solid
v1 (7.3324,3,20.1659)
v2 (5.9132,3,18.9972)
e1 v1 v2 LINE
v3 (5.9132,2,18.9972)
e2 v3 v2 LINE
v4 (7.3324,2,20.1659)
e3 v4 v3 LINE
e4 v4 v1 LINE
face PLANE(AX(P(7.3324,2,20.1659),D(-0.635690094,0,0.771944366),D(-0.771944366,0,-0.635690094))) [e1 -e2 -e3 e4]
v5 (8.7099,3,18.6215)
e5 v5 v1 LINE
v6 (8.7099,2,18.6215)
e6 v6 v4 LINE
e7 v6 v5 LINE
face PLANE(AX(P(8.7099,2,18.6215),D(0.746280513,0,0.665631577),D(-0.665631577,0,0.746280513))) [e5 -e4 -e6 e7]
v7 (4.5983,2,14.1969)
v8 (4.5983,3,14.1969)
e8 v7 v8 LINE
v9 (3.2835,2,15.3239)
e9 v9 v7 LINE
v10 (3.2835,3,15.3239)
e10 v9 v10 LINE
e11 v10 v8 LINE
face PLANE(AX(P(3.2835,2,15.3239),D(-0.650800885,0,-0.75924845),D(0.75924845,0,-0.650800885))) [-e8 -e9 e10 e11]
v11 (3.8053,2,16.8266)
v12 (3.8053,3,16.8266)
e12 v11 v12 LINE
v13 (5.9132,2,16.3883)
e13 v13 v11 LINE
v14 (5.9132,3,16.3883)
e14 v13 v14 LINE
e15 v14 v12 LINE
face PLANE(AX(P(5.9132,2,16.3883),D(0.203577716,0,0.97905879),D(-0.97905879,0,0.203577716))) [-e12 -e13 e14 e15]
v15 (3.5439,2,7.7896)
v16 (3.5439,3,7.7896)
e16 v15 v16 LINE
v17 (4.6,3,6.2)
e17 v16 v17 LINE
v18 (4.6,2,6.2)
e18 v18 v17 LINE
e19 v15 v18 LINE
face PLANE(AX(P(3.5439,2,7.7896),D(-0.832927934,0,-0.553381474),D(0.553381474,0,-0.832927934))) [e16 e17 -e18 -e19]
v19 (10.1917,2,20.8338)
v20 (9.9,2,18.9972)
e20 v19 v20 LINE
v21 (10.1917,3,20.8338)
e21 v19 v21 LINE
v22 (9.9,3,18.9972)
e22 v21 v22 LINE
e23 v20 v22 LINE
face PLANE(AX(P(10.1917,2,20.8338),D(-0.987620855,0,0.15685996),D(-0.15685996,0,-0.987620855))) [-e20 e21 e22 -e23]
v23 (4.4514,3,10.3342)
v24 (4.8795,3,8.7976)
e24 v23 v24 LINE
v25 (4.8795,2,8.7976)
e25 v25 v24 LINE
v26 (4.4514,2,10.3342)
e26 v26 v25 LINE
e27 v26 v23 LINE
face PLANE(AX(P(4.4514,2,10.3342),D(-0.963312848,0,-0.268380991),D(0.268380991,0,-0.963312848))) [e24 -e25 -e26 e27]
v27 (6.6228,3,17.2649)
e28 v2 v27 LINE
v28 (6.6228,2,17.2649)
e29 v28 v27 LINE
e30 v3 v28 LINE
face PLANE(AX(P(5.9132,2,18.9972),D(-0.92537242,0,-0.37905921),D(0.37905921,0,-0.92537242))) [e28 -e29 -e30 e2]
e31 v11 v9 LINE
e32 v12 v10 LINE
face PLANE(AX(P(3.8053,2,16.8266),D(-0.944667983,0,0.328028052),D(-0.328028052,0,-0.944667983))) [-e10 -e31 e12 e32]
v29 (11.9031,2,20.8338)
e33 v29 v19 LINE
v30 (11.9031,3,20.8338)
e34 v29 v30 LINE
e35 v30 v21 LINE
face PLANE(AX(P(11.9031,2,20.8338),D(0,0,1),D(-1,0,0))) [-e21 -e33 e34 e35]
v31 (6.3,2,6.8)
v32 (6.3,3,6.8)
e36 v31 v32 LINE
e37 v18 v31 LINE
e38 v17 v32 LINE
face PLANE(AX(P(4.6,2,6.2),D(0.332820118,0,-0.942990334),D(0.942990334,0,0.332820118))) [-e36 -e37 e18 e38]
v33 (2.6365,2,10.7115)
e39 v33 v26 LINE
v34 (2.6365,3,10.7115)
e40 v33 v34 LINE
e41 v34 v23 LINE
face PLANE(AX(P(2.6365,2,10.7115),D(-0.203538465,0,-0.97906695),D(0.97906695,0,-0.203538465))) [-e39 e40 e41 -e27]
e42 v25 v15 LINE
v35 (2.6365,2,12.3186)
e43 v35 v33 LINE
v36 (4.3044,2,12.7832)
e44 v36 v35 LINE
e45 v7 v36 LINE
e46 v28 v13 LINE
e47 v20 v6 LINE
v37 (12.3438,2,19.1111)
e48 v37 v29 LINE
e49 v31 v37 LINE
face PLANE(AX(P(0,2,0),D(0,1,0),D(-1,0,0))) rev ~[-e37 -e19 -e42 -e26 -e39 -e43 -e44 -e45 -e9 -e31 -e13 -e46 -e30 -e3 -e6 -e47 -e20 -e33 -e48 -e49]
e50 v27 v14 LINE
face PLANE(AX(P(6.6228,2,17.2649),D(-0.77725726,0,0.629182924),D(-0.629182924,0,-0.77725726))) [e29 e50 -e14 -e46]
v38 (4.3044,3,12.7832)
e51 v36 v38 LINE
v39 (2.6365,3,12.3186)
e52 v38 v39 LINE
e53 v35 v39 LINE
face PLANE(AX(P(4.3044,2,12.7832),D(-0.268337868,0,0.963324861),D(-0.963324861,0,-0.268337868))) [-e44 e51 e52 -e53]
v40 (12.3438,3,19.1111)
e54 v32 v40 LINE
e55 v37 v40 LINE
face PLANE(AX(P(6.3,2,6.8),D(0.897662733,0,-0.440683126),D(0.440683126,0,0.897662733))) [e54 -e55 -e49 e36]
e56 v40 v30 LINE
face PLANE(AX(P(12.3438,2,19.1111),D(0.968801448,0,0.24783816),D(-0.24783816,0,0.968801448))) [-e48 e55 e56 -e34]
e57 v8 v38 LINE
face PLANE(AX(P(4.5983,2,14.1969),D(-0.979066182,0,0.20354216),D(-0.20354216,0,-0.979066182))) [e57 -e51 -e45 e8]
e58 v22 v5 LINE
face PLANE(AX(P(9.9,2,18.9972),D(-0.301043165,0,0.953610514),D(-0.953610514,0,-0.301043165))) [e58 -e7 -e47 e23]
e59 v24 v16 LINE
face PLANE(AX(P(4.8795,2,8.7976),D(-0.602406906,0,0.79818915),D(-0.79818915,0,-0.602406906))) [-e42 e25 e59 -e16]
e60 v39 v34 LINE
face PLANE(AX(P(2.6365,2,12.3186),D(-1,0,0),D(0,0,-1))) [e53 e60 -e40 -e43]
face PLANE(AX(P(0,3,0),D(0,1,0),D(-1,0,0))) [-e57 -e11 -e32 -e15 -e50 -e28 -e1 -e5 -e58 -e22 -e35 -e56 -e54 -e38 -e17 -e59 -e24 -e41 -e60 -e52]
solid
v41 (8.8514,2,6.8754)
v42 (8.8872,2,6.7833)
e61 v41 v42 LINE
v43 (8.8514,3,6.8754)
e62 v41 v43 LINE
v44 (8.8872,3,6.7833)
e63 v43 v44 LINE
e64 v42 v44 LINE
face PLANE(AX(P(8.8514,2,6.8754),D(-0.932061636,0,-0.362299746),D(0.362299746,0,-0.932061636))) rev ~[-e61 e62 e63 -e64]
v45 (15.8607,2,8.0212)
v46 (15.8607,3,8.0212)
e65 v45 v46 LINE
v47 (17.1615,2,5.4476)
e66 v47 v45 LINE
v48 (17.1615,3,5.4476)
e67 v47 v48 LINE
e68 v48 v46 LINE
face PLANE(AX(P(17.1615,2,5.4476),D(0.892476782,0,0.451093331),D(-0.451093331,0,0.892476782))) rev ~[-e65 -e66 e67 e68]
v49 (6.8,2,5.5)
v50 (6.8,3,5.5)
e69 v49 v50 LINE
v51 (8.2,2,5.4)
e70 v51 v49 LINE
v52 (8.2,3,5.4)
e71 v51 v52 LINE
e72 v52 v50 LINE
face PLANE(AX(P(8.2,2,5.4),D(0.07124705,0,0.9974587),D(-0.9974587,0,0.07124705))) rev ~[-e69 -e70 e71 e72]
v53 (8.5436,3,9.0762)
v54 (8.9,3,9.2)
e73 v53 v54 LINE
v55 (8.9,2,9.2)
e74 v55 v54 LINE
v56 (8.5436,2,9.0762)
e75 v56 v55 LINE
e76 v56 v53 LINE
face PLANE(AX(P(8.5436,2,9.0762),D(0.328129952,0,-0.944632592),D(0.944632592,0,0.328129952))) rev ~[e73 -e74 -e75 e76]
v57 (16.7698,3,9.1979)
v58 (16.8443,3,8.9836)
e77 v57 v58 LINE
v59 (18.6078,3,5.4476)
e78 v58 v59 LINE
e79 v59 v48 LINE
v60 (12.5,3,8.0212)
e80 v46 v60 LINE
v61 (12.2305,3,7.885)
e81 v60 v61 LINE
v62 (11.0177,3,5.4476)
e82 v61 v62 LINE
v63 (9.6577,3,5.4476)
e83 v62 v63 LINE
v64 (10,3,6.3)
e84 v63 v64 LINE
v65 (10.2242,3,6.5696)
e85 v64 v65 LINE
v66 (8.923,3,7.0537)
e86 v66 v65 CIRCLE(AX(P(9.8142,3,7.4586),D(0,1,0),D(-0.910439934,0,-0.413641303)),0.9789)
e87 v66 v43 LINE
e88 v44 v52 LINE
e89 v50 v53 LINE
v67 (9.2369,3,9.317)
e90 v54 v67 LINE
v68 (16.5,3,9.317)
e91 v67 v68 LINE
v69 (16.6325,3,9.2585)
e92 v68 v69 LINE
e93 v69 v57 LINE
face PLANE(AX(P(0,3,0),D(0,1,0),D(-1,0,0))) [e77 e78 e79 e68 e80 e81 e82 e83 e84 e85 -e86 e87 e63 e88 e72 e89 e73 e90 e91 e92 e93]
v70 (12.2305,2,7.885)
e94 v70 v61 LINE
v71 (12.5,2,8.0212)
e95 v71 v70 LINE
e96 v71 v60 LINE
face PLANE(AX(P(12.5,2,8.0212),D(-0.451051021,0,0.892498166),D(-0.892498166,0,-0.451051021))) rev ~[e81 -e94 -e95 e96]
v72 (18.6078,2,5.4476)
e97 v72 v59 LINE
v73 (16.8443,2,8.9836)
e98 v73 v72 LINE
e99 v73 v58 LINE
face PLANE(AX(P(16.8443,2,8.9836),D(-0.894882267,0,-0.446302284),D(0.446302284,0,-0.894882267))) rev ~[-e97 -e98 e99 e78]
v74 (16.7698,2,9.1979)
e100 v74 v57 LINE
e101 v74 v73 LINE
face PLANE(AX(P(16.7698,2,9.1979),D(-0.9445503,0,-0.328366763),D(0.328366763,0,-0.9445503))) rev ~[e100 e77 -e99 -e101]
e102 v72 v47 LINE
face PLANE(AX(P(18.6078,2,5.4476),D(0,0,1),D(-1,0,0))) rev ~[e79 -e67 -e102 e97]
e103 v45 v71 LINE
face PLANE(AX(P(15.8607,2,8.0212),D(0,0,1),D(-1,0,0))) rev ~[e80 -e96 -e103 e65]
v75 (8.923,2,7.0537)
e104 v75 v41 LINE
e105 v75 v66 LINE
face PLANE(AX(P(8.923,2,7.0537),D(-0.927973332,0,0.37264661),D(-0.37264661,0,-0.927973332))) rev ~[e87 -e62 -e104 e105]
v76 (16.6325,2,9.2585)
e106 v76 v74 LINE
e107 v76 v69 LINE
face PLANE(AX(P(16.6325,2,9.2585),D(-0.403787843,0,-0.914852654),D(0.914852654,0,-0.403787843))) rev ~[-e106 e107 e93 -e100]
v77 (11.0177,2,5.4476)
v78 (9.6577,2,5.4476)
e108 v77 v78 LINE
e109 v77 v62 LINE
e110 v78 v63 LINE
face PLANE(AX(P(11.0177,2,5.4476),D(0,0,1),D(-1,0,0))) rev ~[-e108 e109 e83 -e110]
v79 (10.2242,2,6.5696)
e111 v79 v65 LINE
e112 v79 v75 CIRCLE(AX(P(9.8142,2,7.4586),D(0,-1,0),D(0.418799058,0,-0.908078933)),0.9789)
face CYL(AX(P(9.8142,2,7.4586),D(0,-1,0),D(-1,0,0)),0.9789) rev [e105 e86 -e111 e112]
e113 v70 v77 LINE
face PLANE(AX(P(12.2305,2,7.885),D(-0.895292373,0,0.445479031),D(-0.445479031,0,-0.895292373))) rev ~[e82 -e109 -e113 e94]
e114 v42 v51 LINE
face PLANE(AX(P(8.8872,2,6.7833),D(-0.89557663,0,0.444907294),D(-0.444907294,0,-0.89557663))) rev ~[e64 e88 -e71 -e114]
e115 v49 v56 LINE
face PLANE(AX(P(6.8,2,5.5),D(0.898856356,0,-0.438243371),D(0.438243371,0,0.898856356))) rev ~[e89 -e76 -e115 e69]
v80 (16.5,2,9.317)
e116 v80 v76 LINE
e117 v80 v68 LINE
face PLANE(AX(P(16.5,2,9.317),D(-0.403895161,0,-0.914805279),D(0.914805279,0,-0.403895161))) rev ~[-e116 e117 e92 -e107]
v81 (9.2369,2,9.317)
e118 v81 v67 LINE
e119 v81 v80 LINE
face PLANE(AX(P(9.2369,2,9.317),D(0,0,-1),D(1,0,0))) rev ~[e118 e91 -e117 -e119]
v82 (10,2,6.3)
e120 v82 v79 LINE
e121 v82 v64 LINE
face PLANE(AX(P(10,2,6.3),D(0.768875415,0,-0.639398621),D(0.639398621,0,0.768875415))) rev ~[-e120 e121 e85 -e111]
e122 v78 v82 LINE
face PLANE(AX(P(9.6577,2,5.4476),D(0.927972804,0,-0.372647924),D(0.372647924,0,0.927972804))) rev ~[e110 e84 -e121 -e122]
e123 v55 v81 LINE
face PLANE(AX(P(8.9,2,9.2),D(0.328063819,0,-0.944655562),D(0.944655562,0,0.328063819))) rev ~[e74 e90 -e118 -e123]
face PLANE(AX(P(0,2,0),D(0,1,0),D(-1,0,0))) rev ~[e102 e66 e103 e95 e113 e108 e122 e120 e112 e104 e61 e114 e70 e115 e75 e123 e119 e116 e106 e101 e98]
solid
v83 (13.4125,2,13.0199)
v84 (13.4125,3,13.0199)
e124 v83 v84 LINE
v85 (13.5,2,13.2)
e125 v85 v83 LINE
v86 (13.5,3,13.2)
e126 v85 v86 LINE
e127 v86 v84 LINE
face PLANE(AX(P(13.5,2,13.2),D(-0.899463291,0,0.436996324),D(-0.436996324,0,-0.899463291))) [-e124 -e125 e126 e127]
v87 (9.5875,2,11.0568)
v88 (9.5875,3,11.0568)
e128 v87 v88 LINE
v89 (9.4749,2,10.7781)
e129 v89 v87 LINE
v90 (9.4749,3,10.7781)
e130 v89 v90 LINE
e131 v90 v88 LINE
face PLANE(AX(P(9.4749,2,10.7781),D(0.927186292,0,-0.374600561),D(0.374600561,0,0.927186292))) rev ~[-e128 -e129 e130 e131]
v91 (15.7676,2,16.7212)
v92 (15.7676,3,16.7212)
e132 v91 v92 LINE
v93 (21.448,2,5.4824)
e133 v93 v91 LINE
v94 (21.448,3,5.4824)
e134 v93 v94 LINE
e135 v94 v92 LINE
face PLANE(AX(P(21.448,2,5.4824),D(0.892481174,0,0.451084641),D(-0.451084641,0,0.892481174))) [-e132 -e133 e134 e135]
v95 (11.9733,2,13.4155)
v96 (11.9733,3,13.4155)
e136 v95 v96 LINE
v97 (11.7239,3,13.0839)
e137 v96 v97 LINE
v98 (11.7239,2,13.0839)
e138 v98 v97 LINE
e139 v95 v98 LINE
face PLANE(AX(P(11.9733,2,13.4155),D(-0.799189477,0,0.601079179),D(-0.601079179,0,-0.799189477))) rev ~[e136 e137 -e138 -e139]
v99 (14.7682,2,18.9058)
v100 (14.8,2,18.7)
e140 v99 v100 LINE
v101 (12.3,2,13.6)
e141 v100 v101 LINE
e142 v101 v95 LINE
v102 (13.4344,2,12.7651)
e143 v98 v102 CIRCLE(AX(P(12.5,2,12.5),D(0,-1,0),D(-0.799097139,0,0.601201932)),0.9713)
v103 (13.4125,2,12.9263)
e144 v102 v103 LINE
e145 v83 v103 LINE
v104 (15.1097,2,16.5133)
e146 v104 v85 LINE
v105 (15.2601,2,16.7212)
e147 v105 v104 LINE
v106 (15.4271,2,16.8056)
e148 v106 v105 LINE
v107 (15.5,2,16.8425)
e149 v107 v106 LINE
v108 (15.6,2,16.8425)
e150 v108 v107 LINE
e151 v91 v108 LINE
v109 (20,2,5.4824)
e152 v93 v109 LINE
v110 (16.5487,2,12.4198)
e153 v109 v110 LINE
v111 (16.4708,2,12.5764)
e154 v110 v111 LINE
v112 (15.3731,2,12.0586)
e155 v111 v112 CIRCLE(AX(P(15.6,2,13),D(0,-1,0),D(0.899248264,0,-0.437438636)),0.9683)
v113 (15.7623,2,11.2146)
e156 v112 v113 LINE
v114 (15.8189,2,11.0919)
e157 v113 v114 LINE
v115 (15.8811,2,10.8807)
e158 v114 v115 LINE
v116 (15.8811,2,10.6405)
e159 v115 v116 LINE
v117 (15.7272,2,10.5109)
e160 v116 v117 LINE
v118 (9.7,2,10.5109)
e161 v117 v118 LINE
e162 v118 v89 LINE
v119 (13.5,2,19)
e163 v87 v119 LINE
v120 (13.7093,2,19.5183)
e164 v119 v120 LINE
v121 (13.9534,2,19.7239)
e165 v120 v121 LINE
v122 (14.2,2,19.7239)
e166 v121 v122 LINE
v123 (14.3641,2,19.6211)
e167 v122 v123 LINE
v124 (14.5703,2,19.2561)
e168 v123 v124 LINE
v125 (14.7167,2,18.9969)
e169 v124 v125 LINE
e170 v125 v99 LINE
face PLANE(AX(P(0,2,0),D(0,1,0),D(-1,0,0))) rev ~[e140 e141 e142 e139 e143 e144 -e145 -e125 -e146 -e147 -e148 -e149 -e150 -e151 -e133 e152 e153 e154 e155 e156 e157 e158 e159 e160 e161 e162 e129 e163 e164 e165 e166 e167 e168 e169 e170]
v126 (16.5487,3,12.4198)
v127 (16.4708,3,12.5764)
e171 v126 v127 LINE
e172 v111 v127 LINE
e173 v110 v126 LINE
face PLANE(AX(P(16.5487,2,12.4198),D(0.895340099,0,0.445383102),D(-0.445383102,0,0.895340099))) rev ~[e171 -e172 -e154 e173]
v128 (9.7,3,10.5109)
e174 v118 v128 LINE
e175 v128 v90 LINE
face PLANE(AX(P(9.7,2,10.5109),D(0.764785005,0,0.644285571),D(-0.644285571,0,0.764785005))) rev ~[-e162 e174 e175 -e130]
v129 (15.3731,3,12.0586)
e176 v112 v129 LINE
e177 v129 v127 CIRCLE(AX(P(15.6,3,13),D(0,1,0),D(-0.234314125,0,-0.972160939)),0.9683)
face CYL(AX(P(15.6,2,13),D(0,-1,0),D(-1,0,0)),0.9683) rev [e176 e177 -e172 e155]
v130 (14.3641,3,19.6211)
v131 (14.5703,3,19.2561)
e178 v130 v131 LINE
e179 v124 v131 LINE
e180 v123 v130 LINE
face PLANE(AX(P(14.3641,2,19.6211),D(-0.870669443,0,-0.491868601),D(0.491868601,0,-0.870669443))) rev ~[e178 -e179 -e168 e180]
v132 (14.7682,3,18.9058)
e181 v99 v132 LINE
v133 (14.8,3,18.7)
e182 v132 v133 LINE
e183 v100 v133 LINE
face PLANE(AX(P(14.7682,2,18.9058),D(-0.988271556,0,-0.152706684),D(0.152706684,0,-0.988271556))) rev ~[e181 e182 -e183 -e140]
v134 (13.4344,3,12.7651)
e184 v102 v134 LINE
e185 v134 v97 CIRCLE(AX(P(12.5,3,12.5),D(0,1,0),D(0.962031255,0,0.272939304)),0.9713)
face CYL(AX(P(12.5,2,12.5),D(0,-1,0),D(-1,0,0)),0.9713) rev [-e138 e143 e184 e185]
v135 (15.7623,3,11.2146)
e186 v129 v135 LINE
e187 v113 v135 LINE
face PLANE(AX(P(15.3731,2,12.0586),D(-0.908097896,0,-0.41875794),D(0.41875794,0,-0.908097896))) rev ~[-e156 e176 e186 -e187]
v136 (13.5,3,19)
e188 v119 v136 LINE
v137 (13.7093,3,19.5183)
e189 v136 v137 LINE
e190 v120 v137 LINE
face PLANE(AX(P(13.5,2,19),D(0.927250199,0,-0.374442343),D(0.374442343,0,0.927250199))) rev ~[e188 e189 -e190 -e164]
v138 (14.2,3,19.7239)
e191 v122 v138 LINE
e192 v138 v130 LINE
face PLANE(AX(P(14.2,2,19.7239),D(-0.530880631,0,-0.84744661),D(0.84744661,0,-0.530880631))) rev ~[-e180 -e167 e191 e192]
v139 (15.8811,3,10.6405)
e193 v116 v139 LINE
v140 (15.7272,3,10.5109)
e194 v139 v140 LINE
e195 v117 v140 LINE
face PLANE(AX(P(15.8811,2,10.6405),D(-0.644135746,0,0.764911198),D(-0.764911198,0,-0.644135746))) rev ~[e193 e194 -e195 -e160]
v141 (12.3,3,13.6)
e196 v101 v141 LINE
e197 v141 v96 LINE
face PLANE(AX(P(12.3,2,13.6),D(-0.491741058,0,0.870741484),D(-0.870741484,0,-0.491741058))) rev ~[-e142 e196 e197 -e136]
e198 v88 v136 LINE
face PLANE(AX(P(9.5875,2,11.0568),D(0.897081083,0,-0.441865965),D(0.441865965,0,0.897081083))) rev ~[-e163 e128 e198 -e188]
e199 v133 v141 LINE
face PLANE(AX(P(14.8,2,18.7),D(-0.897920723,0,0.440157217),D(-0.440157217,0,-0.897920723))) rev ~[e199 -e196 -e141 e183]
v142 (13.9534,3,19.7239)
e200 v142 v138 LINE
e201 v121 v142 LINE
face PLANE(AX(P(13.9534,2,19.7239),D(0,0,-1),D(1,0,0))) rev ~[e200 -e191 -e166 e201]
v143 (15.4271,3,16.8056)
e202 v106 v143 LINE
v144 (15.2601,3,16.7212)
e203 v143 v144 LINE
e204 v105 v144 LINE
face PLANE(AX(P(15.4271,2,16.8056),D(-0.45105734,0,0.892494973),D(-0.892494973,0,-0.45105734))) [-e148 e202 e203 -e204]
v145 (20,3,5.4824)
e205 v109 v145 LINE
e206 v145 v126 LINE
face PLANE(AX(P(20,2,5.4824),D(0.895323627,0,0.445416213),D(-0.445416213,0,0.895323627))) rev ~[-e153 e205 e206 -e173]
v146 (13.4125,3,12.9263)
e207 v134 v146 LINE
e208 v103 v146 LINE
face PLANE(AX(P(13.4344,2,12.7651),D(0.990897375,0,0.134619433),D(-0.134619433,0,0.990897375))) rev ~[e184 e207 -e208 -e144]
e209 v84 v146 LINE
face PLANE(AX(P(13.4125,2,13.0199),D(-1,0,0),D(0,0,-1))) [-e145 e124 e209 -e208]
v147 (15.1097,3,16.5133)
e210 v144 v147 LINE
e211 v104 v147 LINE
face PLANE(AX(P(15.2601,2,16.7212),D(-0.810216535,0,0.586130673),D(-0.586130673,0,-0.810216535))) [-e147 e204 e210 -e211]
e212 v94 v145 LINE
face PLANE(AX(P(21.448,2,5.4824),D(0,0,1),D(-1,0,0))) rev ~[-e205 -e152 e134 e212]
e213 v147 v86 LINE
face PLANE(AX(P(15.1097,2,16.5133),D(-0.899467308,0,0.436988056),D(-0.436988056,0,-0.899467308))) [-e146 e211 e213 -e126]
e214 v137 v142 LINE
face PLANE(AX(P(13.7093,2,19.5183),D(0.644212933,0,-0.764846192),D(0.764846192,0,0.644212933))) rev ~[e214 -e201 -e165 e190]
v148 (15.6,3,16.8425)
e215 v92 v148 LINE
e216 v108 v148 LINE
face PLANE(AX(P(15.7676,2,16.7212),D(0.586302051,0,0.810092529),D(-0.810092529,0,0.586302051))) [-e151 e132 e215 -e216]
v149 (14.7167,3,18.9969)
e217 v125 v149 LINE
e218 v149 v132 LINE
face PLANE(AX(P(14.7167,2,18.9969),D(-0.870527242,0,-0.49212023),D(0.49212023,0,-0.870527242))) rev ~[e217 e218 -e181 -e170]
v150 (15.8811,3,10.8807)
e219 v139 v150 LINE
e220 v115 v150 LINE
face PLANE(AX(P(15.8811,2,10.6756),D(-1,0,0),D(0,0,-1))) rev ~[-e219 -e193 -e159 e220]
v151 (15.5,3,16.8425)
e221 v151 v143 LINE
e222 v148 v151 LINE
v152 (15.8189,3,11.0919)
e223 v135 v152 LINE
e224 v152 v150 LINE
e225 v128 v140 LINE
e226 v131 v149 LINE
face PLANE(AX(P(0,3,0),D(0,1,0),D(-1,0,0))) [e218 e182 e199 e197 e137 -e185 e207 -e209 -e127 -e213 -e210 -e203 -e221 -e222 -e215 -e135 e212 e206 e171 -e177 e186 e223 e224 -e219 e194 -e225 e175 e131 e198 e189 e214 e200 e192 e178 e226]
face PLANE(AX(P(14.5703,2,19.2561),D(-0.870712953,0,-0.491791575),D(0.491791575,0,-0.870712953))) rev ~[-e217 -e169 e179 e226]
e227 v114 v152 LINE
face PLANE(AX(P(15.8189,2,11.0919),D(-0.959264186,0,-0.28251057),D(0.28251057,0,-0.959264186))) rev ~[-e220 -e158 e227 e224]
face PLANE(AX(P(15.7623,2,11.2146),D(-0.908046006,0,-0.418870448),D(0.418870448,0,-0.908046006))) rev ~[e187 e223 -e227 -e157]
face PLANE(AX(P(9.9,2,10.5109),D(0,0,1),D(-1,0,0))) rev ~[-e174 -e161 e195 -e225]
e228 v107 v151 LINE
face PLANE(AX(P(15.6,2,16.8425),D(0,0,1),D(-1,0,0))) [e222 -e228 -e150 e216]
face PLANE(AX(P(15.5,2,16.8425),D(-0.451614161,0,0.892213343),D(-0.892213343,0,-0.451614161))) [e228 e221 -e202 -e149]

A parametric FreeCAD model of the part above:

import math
import FreeCAD as App
import Part
import Sketcher
Q = App.Units.Quantity


def add_polygon(sketch, points):
    """Adds a closed chain of lines whose ends are joined by coincident constraints."""
    first, n = sketch.GeometryCount, len(points)
    for a, b in zip(points, points[1:] + points[:1]):
        sketch.addGeometry(Part.LineSegment(App.Vector(*a, 0), App.Vector(*b, 0)), False)
    for i in range(n):
        sketch.addConstraint(Sketcher.Constraint("Coincident", first + i, 2, first + (i + 1) % n, 1))

doc = App.newDocument("Part")
params = doc.addObject("Spreadsheet::Sheet", "Params")
for row, (alias, value) in enumerate([
    ("sketch1_length", "0.07 in"),
    ("sketch1_width", "0.057 in"),
    ("sketch1_length2", "0.022 in"),
    ("pad1_length", "1 mm"),
], start=1):
    params.set(f"A{row}", alias)
    params.set(f"B{row}", "=" + value)
    params.setAlias(f"B{row}", alias)

body = doc.addObject("PartDesign::Body", "Body")
body.AllowCompound = True

sketch1 = body.newObject("Sketcher::SketchObject", "Sketch")
sketch1.AttachmentSupport = (doc.getObject("XZ_Plane"), [""])
sketch1.MapMode = "FlatFace"
sketch1.AttachmentOffset = App.Placement(App.Vector(0, 0, -2), App.Rotation())
sketch1.addGeometry(Part.LineSegment(App.Vector(15.77, 16.72, 0), App.Vector(21.45, 5.48, 0)), False)
sketch1.addGeometry(Part.LineSegment(App.Vector(21.45, 5.48, 0), App.Vector(20, 5.48, 0)), False)
sketch1.addGeometry(Part.LineSegment(App.Vector(20, 5.48, 0), App.Vector(16.55, 12.42, 0)), False)
sketch1.addGeometry(Part.LineSegment(App.Vector(16.55, 12.42, 0), App.Vector(16.47, 12.58, 0)), False)
sketch1.addGeometry(Part.ArcOfCircle(Part.Circle(App.Vector(15.6, 13, 0), App.Vector(0, 0, 1), 0.97), math.radians(-26), math.radians(256)), False)
sketch1.addGeometry(Part.LineSegment(App.Vector(15.37, 12.06, 0), App.Vector(15.76, 11.21, 0)), False)
sketch1.addGeometry(Part.LineSegment(App.Vector(15.76, 11.21, 0), App.Vector(15.82, 11.09, 0)), False)
sketch1.addGeometry(Part.LineSegment(App.Vector(15.82, 11.09, 0), App.Vector(15.88, 10.88, 0)), False)
sketch1.addGeometry(Part.LineSegment(App.Vector(15.88, 10.88, 0), App.Vector(15.88, 10.64, 0)), False)
sketch1.addGeometry(Part.LineSegment(App.Vector(15.88, 10.64, 0), App.Vector(15.73, 10.51, 0)), False)
sketch1.addGeometry(Part.LineSegment(App.Vector(15.73, 10.51, 0), App.Vector(9.7, 10.51, 0)), False)
sketch1.addGeometry(Part.LineSegment(App.Vector(9.7, 10.51, 0), App.Vector(9.47, 10.78, 0)), False)
sketch1.addGeometry(Part.LineSegment(App.Vector(9.47, 10.78, 0), App.Vector(9.59, 11.06, 0)), False)
sketch1.addGeometry(Part.LineSegment(App.Vector(9.59, 11.06, 0), App.Vector(13.5, 19, 0)), False)
sketch1.addGeometry(Part.LineSegment(App.Vector(13.5, 19, 0), App.Vector(13.71, 19.52, 0)), False)
sketch1.addGeometry(Part.LineSegment(App.Vector(13.71, 19.52, 0), App.Vector(13.95, 19.72, 0)), False)
sketch1.addGeometry(Part.LineSegment(App.Vector(13.95, 19.72, 0), App.Vector(14.2, 19.72, 0)), False)
sketch1.addGeometry(Part.LineSegment(App.Vector(14.2, 19.72, 0), App.Vector(14.36, 19.62, 0)), False)
sketch1.addGeometry(Part.LineSegment(App.Vector(14.36, 19.62, 0), App.Vector(14.57, 19.26, 0)), False)
sketch1.addGeometry(Part.LineSegment(App.Vector(14.57, 19.26, 0), App.Vector(14.72, 19, 0)), False)
sketch1.addGeometry(Part.LineSegment(App.Vector(14.72, 19, 0), App.Vector(14.77, 18.91, 0)), False)
sketch1.addGeometry(Part.LineSegment(App.Vector(14.77, 18.91, 0), App.Vector(14.8, 18.7, 0)), False)
sketch1.addGeometry(Part.LineSegment(App.Vector(14.8, 18.7, 0), App.Vector(12.3, 13.6, 0)), False)
sketch1.addGeometry(Part.LineSegment(App.Vector(12.3, 13.6, 0), App.Vector(11.97, 13.42, 0)), False)
sketch1.addGeometry(Part.LineSegment(App.Vector(11.97, 13.42, 0), App.Vector(11.72, 13.08, 0)), False)
sketch1.addGeometry(Part.ArcOfCircle(Part.Circle(App.Vector(12.5, 12.5, 0), App.Vector(0, 0, 1), 0.97), math.radians(143), math.radians(376)), False)
sketch1.addGeometry(Part.LineSegment(App.Vector(13.43, 12.77, 0), App.Vector(13.41, 12.93, 0)), False)
sketch1.addGeometry(Part.LineSegment(App.Vector(13.41, 12.93, 0), App.Vector(13.41, 13.02, 0)), False)
sketch1.addGeometry(Part.LineSegment(App.Vector(13.41, 13.02, 0), App.Vector(13.5, 13.2, 0)), False)
sketch1.addGeometry(Part.LineSegment(App.Vector(13.5, 13.2, 0), App.Vector(15.11, 16.51, 0)), False)
sketch1.addGeometry(Part.LineSegment(App.Vector(15.11, 16.51, 0), App.Vector(15.26, 16.72, 0)), False)
sketch1.addGeometry(Part.LineSegment(App.Vector(15.26, 16.72, 0), App.Vector(15.43, 16.81, 0)), False)
sketch1.addGeometry(Part.LineSegment(App.Vector(15.43, 16.81, 0), App.Vector(15.5, 16.84, 0)), False)
sketch1.addGeometry(Part.LineSegment(App.Vector(15.5, 16.84, 0), App.Vector(15.6, 16.84, 0)), False)
sketch1.addGeometry(Part.LineSegment(App.Vector(15.6, 16.84, 0), App.Vector(15.77, 16.72, 0)), False)
sketch1.addGeometry(Part.ArcOfCircle(Part.Circle(App.Vector(9.81, 7.46, 0), App.Vector(0, 0, 1), 0.98), math.radians(-65), math.radians(204)), False)
sketch1.addGeometry(Part.LineSegment(App.Vector(8.92, 7.05, 0), App.Vector(8.85, 6.88, 0)), False)
sketch1.addGeometry(Part.LineSegment(App.Vector(8.85, 6.88, 0), App.Vector(8.89, 6.78, 0)), False)
sketch1.addGeometry(Part.LineSegment(App.Vector(8.89, 6.78, 0), App.Vector(8.2, 5.4, 0)), False)
sketch1.addGeometry(Part.LineSegment(App.Vector(8.2, 5.4, 0), App.Vector(6.8, 5.5, 0)), False)
sketch1.addGeometry(Part.LineSegment(App.Vector(6.8, 5.5, 0), App.Vector(8.54, 9.08, 0)), False)
sketch1.addGeometry(Part.LineSegment(App.Vector(8.54, 9.08, 0), App.Vector(8.9, 9.2, 0)), False)
sketch1.addGeometry(Part.LineSegment(App.Vector(8.9, 9.2, 0), App.Vector(9.24, 9.32, 0)), False)
sketch1.addGeometry(Part.LineSegment(App.Vector(9.24, 9.32, 0), App.Vector(16.5, 9.32, 0)), False)
sketch1.addGeometry(Part.LineSegment(App.Vector(16.5, 9.32, 0), App.Vector(16.63, 9.26, 0)), False)
sketch1.addGeometry(Part.LineSegment(App.Vector(16.63, 9.26, 0), App.Vector(16.77, 9.2, 0)), False)
sketch1.addGeometry(Part.LineSegment(App.Vector(16.77, 9.2, 0), App.Vector(16.84, 8.98, 0)), False)
sketch1.addGeometry(Part.LineSegment(App.Vector(16.84, 8.98, 0), App.Vector(18.61, 5.45, 0)), False)
sketch1.addGeometry(Part.LineSegment(App.Vector(18.61, 5.45, 0), App.Vector(17.16, 5.45, 0)), False)
sketch1.addGeometry(Part.LineSegment(App.Vector(17.16, 5.45, 0), App.Vector(15.86, 8.02, 0)), False)
sketch1.addGeometry(Part.LineSegment(App.Vector(15.86, 8.02, 0), App.Vector(12.5, 8.02, 0)), False)
sketch1.addGeometry(Part.LineSegment(App.Vector(12.5, 8.02, 0), App.Vector(12.23, 7.88, 0)), False)
sketch1.addGeometry(Part.LineSegment(App.Vector(12.23, 7.88, 0), App.Vector(11.02, 5.45, 0)), False)
sketch1.addGeometry(Part.LineSegment(App.Vector(11.02, 5.45, 0), App.Vector(9.66, 5.45, 0)), False)
sketch1.addGeometry(Part.LineSegment(App.Vector(9.66, 5.45, 0), App.Vector(10, 6.3, 0)), False)
sketch1.addGeometry(Part.LineSegment(App.Vector(10, 6.3, 0), App.Vector(10.22, 6.57, 0)), False)
add_polygon(sketch1, [(10.19, 20.83), (11.9, 20.83), (12.34, 19.11), (6.3, 6.8), (4.6, 6.2), (3.54, 7.79), (4.88, 8.8), (4.45, 10.33), (2.64, 10.71), (2.64, 12.32), (4.3, 12.78), (4.6, 14.2), (3.28, 15.32), (3.81, 16.83), (5.91, 16.39), (6.62, 17.26), (5.91, 19), (7.33, 20.17), (8.71, 18.62), (9.9, 19)])
sketch1.addConstraint(Sketcher.Constraint("Coincident", 0, 2, 1, 1))
sketch1.addConstraint(Sketcher.Constraint("Coincident", 1, 2, 2, 1))
sketch1.addConstraint(Sketcher.Constraint("Coincident", 2, 2, 3, 1))
sketch1.addConstraint(Sketcher.Constraint("Coincident", 3, 2, 4, 1))
sketch1.addConstraint(Sketcher.Constraint("Coincident", 4, 2, 5, 1))
sketch1.addConstraint(Sketcher.Constraint("Coincident", 5, 2, 6, 1))
sketch1.addConstraint(Sketcher.Constraint("Coincident", 6, 2, 7, 1))
sketch1.addConstraint(Sketcher.Constraint("Coincident", 7, 2, 8, 1))
sketch1.addConstraint(Sketcher.Constraint("Coincident", 8, 2, 9, 1))
sketch1.addConstraint(Sketcher.Constraint("Coincident", 9, 2, 10, 1))
sketch1.addConstraint(Sketcher.Constraint("Coincident", 10, 2, 11, 1))
sketch1.addConstraint(Sketcher.Constraint("Coincident", 11, 2, 12, 1))
sketch1.addConstraint(Sketcher.Constraint("Coincident", 12, 2, 13, 1))
sketch1.addConstraint(Sketcher.Constraint("Coincident", 13, 2, 14, 1))
sketch1.addConstraint(Sketcher.Constraint("Coincident", 14, 2, 15, 1))
sketch1.addConstraint(Sketcher.Constraint("Coincident", 15, 2, 16, 1))
sketch1.addConstraint(Sketcher.Constraint("Coincident", 16, 2, 17, 1))
sketch1.addConstraint(Sketcher.Constraint("Coincident", 17, 2, 18, 1))
sketch1.addConstraint(Sketcher.Constraint("Coincident", 18, 2, 19, 1))
sketch1.addConstraint(Sketcher.Constraint("Coincident", 19, 2, 20, 1))
sketch1.addConstraint(Sketcher.Constraint("Coincident", 20, 2, 21, 1))
sketch1.addConstraint(Sketcher.Constraint("Coincident", 21, 2, 22, 1))
sketch1.addConstraint(Sketcher.Constraint("Coincident", 22, 2, 23, 1))
sketch1.addConstraint(Sketcher.Constraint("Coincident", 23, 2, 24, 1))
sketch1.addConstraint(Sketcher.Constraint("Tangent", 24, 2, 25, 1))
sketch1.addConstraint(Sketcher.Constraint("Coincident", 25, 2, 26, 1))
sketch1.addConstraint(Sketcher.Constraint("Coincident", 26, 2, 27, 1))
sketch1.addConstraint(Sketcher.Constraint("Coincident", 27, 2, 28, 1))
sketch1.addConstraint(Sketcher.Constraint("Coincident", 28, 2, 29, 1))
sketch1.addConstraint(Sketcher.Constraint("Coincident", 29, 2, 30, 1))
sketch1.addConstraint(Sketcher.Constraint("Coincident", 30, 2, 31, 1))
sketch1.addConstraint(Sketcher.Constraint("Coincident", 31, 2, 32, 1))
sketch1.addConstraint(Sketcher.Constraint("Coincident", 32, 2, 33, 1))
sketch1.addConstraint(Sketcher.Constraint("Coincident", 33, 2, 34, 1))
sketch1.addConstraint(Sketcher.Constraint("Coincident", 34, 2, 0, 1))
sketch1.addConstraint(Sketcher.Constraint("Coincident", 35, 2, 36, 1))
sketch1.addConstraint(Sketcher.Constraint("Coincident", 36, 2, 37, 1))
sketch1.addConstraint(Sketcher.Constraint("Coincident", 37, 2, 38, 1))
sketch1.addConstraint(Sketcher.Constraint("Coincident", 38, 2, 39, 1))
sketch1.addConstraint(Sketcher.Constraint("Coincident", 39, 2, 40, 1))
sketch1.addConstraint(Sketcher.Constraint("Coincident", 40, 2, 41, 1))
sketch1.addConstraint(Sketcher.Constraint("Coincident", 41, 2, 42, 1))
sketch1.addConstraint(Sketcher.Constraint("Coincident", 42, 2, 43, 1))
sketch1.addConstraint(Sketcher.Constraint("Coincident", 43, 2, 44, 1))
sketch1.addConstraint(Sketcher.Constraint("Coincident", 44, 2, 45, 1))
sketch1.addConstraint(Sketcher.Constraint("Coincident", 45, 2, 46, 1))
sketch1.addConstraint(Sketcher.Constraint("Coincident", 46, 2, 47, 1))
sketch1.addConstraint(Sketcher.Constraint("Coincident", 47, 2, 48, 1))
sketch1.addConstraint(Sketcher.Constraint("Coincident", 48, 2, 49, 1))
sketch1.addConstraint(Sketcher.Constraint("Coincident", 49, 2, 50, 1))
sketch1.addConstraint(Sketcher.Constraint("Coincident", 50, 2, 51, 1))
sketch1.addConstraint(Sketcher.Constraint("Coincident", 51, 2, 52, 1))
sketch1.addConstraint(Sketcher.Constraint("Coincident", 52, 2, 53, 1))
sketch1.addConstraint(Sketcher.Constraint("Coincident", 53, 2, 54, 1))
sketch1.addConstraint(Sketcher.Constraint("Coincident", 54, 2, 55, 1))
sketch1.addConstraint(Sketcher.Constraint("Coincident", 55, 2, 35, 1))
sketch1.addConstraint(Sketcher.Constraint("Horizontal", 1))
sketch1.addConstraint(Sketcher.Constraint("Vertical", 8))
sketch1.addConstraint(Sketcher.Constraint("Horizontal", 10))
sketch1.addConstraint(Sketcher.Constraint("Horizontal", 16))
sketch1.addConstraint(Sketcher.Constraint("Vertical", 27))
sketch1.addConstraint(Sketcher.Constraint("Horizontal", 33))
sketch1.addConstraint(Sketcher.Constraint("Horizontal", 43))
sketch1.addConstraint(Sketcher.Constraint("Horizontal", 48))
sketch1.addConstraint(Sketcher.Constraint("Horizontal", 50))
sketch1.addConstraint(Sketcher.Constraint("Horizontal", 53))
sketch1.addConstraint(Sketcher.Constraint("Horizontal", 56))
sketch1.addConstraint(Sketcher.Constraint("Vertical", 64))
sketch1.addConstraint(Sketcher.Constraint("Parallel", 2, 3))
sketch1.addConstraint(Sketcher.Constraint("Parallel", 5, 6))
sketch1.addConstraint(Sketcher.Constraint("Perpendicular", 9, 11))
sketch1.addConstraint(Sketcher.Constraint("Parallel", 12, 14))
sketch1.addConstraint(Sketcher.Constraint("Perpendicular", 11, 15))
sketch1.addConstraint(Sketcher.Constraint("Parallel", 18, 19))
sketch1.addConstraint(Sketcher.Constraint("Parallel", 19, 20))
sketch1.addConstraint(Sketcher.Constraint("Perpendicular", 20, 23))
sketch1.addConstraint(Sketcher.Constraint("Parallel", 28, 29))
sketch1.addConstraint(Sketcher.Constraint("Perpendicular", 0, 31))
sketch1.addConstraint(Sketcher.Constraint("Perpendicular", 30, 34))
sketch1.addConstraint(Sketcher.Constraint("Parallel", 41, 42))
sketch1.addConstraint(Sketcher.Constraint("Parallel", 44, 45))
sketch1.addConstraint(Sketcher.Constraint("Perpendicular", 42, 46))
sketch1.addConstraint(Sketcher.Constraint("Perpendicular", 31, 49))
sketch1.addConstraint(Sketcher.Constraint("Perpendicular", 49, 51))
sketch1.addConstraint(Sketcher.Constraint("Parallel", 36, 54))
sketch1.addConstraint(Sketcher.Constraint("Perpendicular", 62, 65))
sketch1.addConstraint(Sketcher.Constraint("Perpendicular", 63, 66))
sketch1.addConstraint(Sketcher.Constraint("Perpendicular", 66, 69))
sketch1.addConstraint(Sketcher.Constraint("Horizontal", 30, 2, 34, 2))
sketch1.addConstraint(Sketcher.Constraint("Horizontal", 48, 2, 52, 2))
sketch1.addConstraint(Sketcher.Constraint("Horizontal", 71, 2, 74, 2))
sketch1.addConstraint(Sketcher.Constraint("Vertical", 13, 2, 28, 2))
sketch1.addConstraint(Sketcher.Constraint("Vertical", 4, 3, 33, 2))
sketch1.addConstraint(Sketcher.Constraint("Vertical", 25, 3, 50, 2))
sketch1.addConstraint(Sketcher.Constraint("Vertical", 69, 2, 71, 2))
sketch1.addConstraint(Sketcher.Constraint("Angle", 12, Q("68.0004 deg")))
sketch1.addConstraint(Sketcher.Constraint("Angle", 9, Q("-139.899 deg")))
sketch1.addConstraint(Sketcher.Constraint("Angle", 60, Q("123.5993 deg")))
sketch1.addConstraint(Sketcher.Constraint("Distance", 57, Q("0.07 in")))
sketch1.addConstraint(Sketcher.Constraint("DistanceX", 1, 2, 1, 1, Q("0.057 in")))
sketch1.addConstraint(Sketcher.Constraint("Angle", 2, Q("116.45 deg")))
sketch1.addConstraint(Sketcher.Constraint("Angle", 7, Q("-73.59 deg")))
sketch1.addConstraint(Sketcher.Constraint("Angle", 20, Q("-60.52 deg")))
sketch1.addConstraint(Sketcher.Constraint("Angle", 36, Q("-111.879 deg")))
sketch1.addConstraint(Sketcher.Constraint("Angle", 46, Q("-70.8303 deg")))
sketch1.addConstraint(Sketcher.Constraint("Angle", 51, Q("-153.1889 deg")))
sketch1.addConstraint(Sketcher.Constraint("Angle", 57, Q("-75.6504 deg")))
sketch1.addConstraint(Sketcher.Constraint("Angle", 59, Q("-160.56 deg")))
sketch1.addConstraint(Sketcher.Constraint("Angle", 68, Q("70.8509 deg")))
sketch1.addConstraint(Sketcher.Constraint("Angle", 70, Q("51.0101 deg")))
sketch1.addConstraint(Sketcher.Constraint("Angle", 72, Q("39.4712 deg")))
sketch1.addConstraint(Sketcher.Constraint("Angle", 73, Q("-48.2692 deg")))
sketch1.addConstraint(Sketcher.Constraint("Angle", 74, Q("17.5203 deg")))
sketch1.addConstraint(Sketcher.Constraint("Radius", 4, Q("0.9683 mm")))
sketch1.addConstraint(Sketcher.Constraint("Radius", 25, Q("0.9713 mm")))
sketch1.addConstraint(Sketcher.Constraint("Radius", 35, Q("0.979 mm")))
sketch1.addConstraint(Sketcher.Constraint("Distance", 14, Q("0.022 in")))
sketch1.addConstraint(Sketcher.Constraint("DistanceX", 10, 2, 10, 1, Q("0.2373 in")))
sketch1.addConstraint(Sketcher.Constraint("DistanceX", 16, 1, 16, 2, Q("0.0097 in")))
sketch1.addConstraint(Sketcher.Constraint("DistanceX", 50, 2, 50, 1, Q("0.1323 in")))
sketch1.addConstraint(Sketcher.Constraint("Distance", 5, Q("0.0366 in")))
sketch1.addConstraint(Sketcher.Constraint("Distance", 13, Q("0.3486 in")))
sketch1.addConstraint(Sketcher.Constraint("Distance", 18, Q("0.0165 in")))
sketch1.addConstraint(Sketcher.Constraint("Distance", 21, Q("0.0082 in")))
sketch1.addConstraint(Sketcher.Constraint("Distance", 26, Q("0.0064 in")))
sketch1.addConstraint(Sketcher.Constraint("Distance", 30, Q("0.0101 in")))
sketch1.addConstraint(Sketcher.Constraint("Distance", 37, Q("0.0039 in")))
sketch1.addConstraint(Sketcher.Constraint("Distance", 38, Q("0.0608 in")))
sketch1.addConstraint(Sketcher.Constraint("Distance", 44, Q("0.0057 in")))
sketch1.addConstraint(Sketcher.Constraint("Distance", 45, Q("0.0059 in")))
sketch1.addConstraint(Sketcher.Constraint("Distance", 51, Q("0.0119 in")))
sketch1.addConstraint(Sketcher.Constraint("Distance", 55, Q("0.0138 in")))
sketch1.addConstraint(Sketcher.Constraint("Distance", 62, Q("0.0628 in")))
sketch1.addConstraint(Sketcher.Constraint("Distance", 70, Q("0.0444 in")))
sketch1.addConstraint(Sketcher.Constraint("Distance", 71, Q("0.0737 in")))
sketch1.addConstraint(Sketcher.Constraint("DistanceX", 33, 1, 33, 2, Q("0.1 mm")))
sketch1.addConstraint(Sketcher.Constraint("DistanceX", 43, 1, 43, 2, Q("7.263 mm")))
sketch1.addConstraint(Sketcher.Constraint("DistanceX", 48, 2, 48, 1, Q("1.4463 mm")))
sketch1.addConstraint(Sketcher.Constraint("DistanceX", 53, 2, 53, 1, Q("1.36 mm")))
sketch1.addConstraint(Sketcher.Constraint("DistanceX", 56, 1, 56, 2, Q("1.7114 mm")))
sketch1.addConstraint(Sketcher.Constraint("DistanceY", 8, 2, 8, 1, Q("0.2402 mm")))
sketch1.addConstraint(Sketcher.Constraint("DistanceY", 27, 1, 27, 2, Q("0.0936 mm")))
sketch1.addConstraint(Sketcher.Constraint("DistanceY", 64, 1, 64, 2, Q("1.607 mm")))
sketch1.addConstraint(Sketcher.Constraint("DistanceY", -1, 1, 4, 3, Q("0.5118 in")))
sketch1.addConstraint(Sketcher.Constraint("DistanceX", -1, 1, 0, 2, Q("0.8444 in")))
sketch1.addConstraint(Sketcher.Constraint("DistanceX", -1, 1, 6, 2, Q("0.6228 in")))
sketch1.addConstraint(Sketcher.Constraint("DistanceY", -1, 1, 6, 2, Q("0.4367 in")))
sketch1.addConstraint(Sketcher.Constraint("DistanceX", -1, 1, 10, 2, Q("0.3819 in")))
sketch1.addConstraint(Sketcher.Constraint("DistanceY", -1, 1, 12, 2, Q("0.4353 in")))
sketch1.addConstraint(Sketcher.Constraint("DistanceX", -1, 1, 13, 2, Q("0.5315 in")))
sketch1.addConstraint(Sketcher.Constraint("DistanceX", -1, 1, 19, 2, Q("0.5794 in")))
sketch1.addConstraint(Sketcher.Constraint("DistanceY", -1, 1, 19, 2, Q("0.7479 in")))
sketch1.addConstraint(Sketcher.Constraint("DistanceX", -1, 1, 23, 2, Q("0.4714 in")))
sketch1.addConstraint(Sketcher.Constraint("DistanceY", -1, 1, 26, 2, Q("0.5089 in")))
sketch1.addConstraint(Sketcher.Constraint("DistanceX", -1, 1, 30, 2, Q("0.6008 in")))
sketch1.addConstraint(Sketcher.Constraint("DistanceY", -1, 1, 32, 2, Q("0.6631 in")))
sketch1.addConstraint(Sketcher.Constraint("DistanceX", -1, 1, 35, 2, Q("0.3513 in")))
sketch1.addConstraint(Sketcher.Constraint("DistanceY", -1, 1, 35, 2, Q("0.2777 in")))
sketch1.addConstraint(Sketcher.Constraint("DistanceX", -1, 1, 37, 2, Q("0.3499 in")))
sketch1.addConstraint(Sketcher.Constraint("DistanceY", -1, 1, 38, 2, Q("0.2126 in")))
sketch1.addConstraint(Sketcher.Constraint("DistanceX", -1, 1, 41, 2, Q("0.3504 in")))
sketch1.addConstraint(Sketcher.Constraint("DistanceY", -1, 1, 41, 2, Q("0.3622 in")))
sketch1.addConstraint(Sketcher.Constraint("DistanceY", -1, 1, 42, 2, Q("0.3668 in")))
sketch1.addConstraint(Sketcher.Constraint("DistanceY", -1, 1, 44, 2, Q("0.3645 in")))
sketch1.addConstraint(Sketcher.Constraint("DistanceX", -1, 1, 47, 2, Q("0.7326 in")))
sketch1.addConstraint(Sketcher.Constraint("DistanceY", -1, 1, 49, 2, Q("0.3158 in")))
sketch1.addConstraint(Sketcher.Constraint("DistanceX", -1, 1, 54, 2, Q("0.3937 in")))
sketch1.addConstraint(Sketcher.Constraint("DistanceY", -1, 1, 57, 2, Q("0.7524 in")))
sketch1.addConstraint(Sketcher.Constraint("DistanceX", -1, 1, 59, 2, Q("0.1811 in")))
sketch1.addConstraint(Sketcher.Constraint("DistanceY", -1, 1, 59, 2, Q("0.2441 in")))
sketch1.addConstraint(Sketcher.Constraint("DistanceX", -1, 1, 61, 2, Q("0.1921 in")))
sketch1.addConstraint(Sketcher.Constraint("DistanceX", -1, 1, 63, 2, Q("0.1038 in")))
sketch1.addConstraint(Sketcher.Constraint("DistanceY", -1, 1, 67, 2, Q("0.6033 in")))
sketch1.addConstraint(Sketcher.Constraint("DistanceX", -1, 1, 69, 2, Q("0.2328 in")))
sketch1.addConstraint(Sketcher.Constraint("DistanceY", -1, 1, 69, 2, Q("0.6452 in")))
sketch1.addConstraint(Sketcher.Constraint("DistanceX", -1, 1, 73, 2, Q("0.3429 in")))
sketch1.addConstraint(Sketcher.Constraint("Distance", 0, Q("12.5928 mm")))
sketch1.addConstraint(Sketcher.Constraint("Distance", 2, Q("7.7485 mm")))
sketch1.addConstraint(Sketcher.Constraint("Distance", 3, Q("0.0068898 in")))
sketch1.addConstraint(Sketcher.Constraint("Distance", 6, Q("0.1351 mm")))
sketch1.addConstraint(Sketcher.Constraint("Distance", 7, Q("0.2202 mm")))
sketch1.addConstraint(Sketcher.Constraint("Distance", 11, Q("0.3494 mm")))
sketch1.addConstraint(Sketcher.Constraint("Distance", 15, Q("0.3191 mm")))
sketch1.addConstraint(Sketcher.Constraint("Distance", 17, Q("0.1936 mm")))
sketch1.addConstraint(Sketcher.Constraint("Distance", 20, Q("0.1046 mm")))
sketch1.addConstraint(Sketcher.Constraint("Distance", 22, Q("5.6798 mm")))
sketch1.addConstraint(Sketcher.Constraint("Distance", 23, Q("0.3752 mm")))
sketch1.addConstraint(Sketcher.Constraint("Distance", 24, Q("0.415 mm")))
sketch1.addConstraint(Sketcher.Constraint("Distance", 28, Q("0.2002 mm")))
sketch1.addConstraint(Sketcher.Constraint("Distance", 29, Q("3.6836 mm")))
sketch1.addConstraint(Sketcher.Constraint("Distance", 31, Q("0.187 mm")))
sketch1.addConstraint(Sketcher.Constraint("Distance", 36, Q("0.1921 mm")))
sketch1.addConstraint(Sketcher.Constraint("Distance", 39, Q("1.4036 mm")))
sketch1.addConstraint(Sketcher.Constraint("Distance", 40, Q("3.9786 mm")))
sketch1.addConstraint(Sketcher.Constraint("Distance", 41, Q("0.3773 mm")))
sketch1.addConstraint(Sketcher.Constraint("Distance", 46, Q("0.227 mm")))
sketch1.addConstraint(Sketcher.Constraint("Distance", 47, Q("3.9514 mm")))
sketch1.addConstraint(Sketcher.Constraint("Distance", 52, Q("2.7225 mm")))
sketch1.addConstraint(Sketcher.Constraint("Distance", 58, Q("13.7146 mm")))
sketch1.addConstraint(Sketcher.Constraint("Distance", 59, Q("1.8028 mm")))
sketch1.addConstraint(Sketcher.Constraint("Distance", 60, Q("1.9084 mm")))
sketch1.addConstraint(Sketcher.Constraint("Distance", 61, Q("1.6733 mm")))
sketch1.addConstraint(Sketcher.Constraint("Distance", 63, Q("1.8537 mm")))
sketch1.addConstraint(Sketcher.Constraint("Distance", 65, Q("1.7314 mm")))
sketch1.addConstraint(Sketcher.Constraint("Distance", 66, Q("1.444 mm")))
sketch1.addConstraint(Sketcher.Constraint("Distance", 67, Q("1.7317 mm")))
sketch1.addConstraint(Sketcher.Constraint("Distance", 68, Q("1.5907 mm")))
sketch1.addConstraint(Sketcher.Constraint("Distance", 72, Q("1.8385 mm")))
sketch1.addConstraint(Sketcher.Constraint("DistanceY", -1, 1, 25, 3, Q("12.5 mm")))
sketch1.addConstraint(Sketcher.Constraint("DistanceX", -1, 1, 35, 3, Q("9.8142 mm")))
sketch1.setExpression("Constraints[118]", "Params.sketch1_length")
sketch1.setExpression("Constraints[119]", "Params.sketch1_width")
sketch1.setExpression("Constraints[136]", "Params.sketch1_length2")
pad1 = body.newObject("PartDesign::Pad", "Pad")
pad1.Profile = sketch1
pad1.setExpression("Length", "Params.pad1_length")
pad1.Reversed = True

doc.recompute()
